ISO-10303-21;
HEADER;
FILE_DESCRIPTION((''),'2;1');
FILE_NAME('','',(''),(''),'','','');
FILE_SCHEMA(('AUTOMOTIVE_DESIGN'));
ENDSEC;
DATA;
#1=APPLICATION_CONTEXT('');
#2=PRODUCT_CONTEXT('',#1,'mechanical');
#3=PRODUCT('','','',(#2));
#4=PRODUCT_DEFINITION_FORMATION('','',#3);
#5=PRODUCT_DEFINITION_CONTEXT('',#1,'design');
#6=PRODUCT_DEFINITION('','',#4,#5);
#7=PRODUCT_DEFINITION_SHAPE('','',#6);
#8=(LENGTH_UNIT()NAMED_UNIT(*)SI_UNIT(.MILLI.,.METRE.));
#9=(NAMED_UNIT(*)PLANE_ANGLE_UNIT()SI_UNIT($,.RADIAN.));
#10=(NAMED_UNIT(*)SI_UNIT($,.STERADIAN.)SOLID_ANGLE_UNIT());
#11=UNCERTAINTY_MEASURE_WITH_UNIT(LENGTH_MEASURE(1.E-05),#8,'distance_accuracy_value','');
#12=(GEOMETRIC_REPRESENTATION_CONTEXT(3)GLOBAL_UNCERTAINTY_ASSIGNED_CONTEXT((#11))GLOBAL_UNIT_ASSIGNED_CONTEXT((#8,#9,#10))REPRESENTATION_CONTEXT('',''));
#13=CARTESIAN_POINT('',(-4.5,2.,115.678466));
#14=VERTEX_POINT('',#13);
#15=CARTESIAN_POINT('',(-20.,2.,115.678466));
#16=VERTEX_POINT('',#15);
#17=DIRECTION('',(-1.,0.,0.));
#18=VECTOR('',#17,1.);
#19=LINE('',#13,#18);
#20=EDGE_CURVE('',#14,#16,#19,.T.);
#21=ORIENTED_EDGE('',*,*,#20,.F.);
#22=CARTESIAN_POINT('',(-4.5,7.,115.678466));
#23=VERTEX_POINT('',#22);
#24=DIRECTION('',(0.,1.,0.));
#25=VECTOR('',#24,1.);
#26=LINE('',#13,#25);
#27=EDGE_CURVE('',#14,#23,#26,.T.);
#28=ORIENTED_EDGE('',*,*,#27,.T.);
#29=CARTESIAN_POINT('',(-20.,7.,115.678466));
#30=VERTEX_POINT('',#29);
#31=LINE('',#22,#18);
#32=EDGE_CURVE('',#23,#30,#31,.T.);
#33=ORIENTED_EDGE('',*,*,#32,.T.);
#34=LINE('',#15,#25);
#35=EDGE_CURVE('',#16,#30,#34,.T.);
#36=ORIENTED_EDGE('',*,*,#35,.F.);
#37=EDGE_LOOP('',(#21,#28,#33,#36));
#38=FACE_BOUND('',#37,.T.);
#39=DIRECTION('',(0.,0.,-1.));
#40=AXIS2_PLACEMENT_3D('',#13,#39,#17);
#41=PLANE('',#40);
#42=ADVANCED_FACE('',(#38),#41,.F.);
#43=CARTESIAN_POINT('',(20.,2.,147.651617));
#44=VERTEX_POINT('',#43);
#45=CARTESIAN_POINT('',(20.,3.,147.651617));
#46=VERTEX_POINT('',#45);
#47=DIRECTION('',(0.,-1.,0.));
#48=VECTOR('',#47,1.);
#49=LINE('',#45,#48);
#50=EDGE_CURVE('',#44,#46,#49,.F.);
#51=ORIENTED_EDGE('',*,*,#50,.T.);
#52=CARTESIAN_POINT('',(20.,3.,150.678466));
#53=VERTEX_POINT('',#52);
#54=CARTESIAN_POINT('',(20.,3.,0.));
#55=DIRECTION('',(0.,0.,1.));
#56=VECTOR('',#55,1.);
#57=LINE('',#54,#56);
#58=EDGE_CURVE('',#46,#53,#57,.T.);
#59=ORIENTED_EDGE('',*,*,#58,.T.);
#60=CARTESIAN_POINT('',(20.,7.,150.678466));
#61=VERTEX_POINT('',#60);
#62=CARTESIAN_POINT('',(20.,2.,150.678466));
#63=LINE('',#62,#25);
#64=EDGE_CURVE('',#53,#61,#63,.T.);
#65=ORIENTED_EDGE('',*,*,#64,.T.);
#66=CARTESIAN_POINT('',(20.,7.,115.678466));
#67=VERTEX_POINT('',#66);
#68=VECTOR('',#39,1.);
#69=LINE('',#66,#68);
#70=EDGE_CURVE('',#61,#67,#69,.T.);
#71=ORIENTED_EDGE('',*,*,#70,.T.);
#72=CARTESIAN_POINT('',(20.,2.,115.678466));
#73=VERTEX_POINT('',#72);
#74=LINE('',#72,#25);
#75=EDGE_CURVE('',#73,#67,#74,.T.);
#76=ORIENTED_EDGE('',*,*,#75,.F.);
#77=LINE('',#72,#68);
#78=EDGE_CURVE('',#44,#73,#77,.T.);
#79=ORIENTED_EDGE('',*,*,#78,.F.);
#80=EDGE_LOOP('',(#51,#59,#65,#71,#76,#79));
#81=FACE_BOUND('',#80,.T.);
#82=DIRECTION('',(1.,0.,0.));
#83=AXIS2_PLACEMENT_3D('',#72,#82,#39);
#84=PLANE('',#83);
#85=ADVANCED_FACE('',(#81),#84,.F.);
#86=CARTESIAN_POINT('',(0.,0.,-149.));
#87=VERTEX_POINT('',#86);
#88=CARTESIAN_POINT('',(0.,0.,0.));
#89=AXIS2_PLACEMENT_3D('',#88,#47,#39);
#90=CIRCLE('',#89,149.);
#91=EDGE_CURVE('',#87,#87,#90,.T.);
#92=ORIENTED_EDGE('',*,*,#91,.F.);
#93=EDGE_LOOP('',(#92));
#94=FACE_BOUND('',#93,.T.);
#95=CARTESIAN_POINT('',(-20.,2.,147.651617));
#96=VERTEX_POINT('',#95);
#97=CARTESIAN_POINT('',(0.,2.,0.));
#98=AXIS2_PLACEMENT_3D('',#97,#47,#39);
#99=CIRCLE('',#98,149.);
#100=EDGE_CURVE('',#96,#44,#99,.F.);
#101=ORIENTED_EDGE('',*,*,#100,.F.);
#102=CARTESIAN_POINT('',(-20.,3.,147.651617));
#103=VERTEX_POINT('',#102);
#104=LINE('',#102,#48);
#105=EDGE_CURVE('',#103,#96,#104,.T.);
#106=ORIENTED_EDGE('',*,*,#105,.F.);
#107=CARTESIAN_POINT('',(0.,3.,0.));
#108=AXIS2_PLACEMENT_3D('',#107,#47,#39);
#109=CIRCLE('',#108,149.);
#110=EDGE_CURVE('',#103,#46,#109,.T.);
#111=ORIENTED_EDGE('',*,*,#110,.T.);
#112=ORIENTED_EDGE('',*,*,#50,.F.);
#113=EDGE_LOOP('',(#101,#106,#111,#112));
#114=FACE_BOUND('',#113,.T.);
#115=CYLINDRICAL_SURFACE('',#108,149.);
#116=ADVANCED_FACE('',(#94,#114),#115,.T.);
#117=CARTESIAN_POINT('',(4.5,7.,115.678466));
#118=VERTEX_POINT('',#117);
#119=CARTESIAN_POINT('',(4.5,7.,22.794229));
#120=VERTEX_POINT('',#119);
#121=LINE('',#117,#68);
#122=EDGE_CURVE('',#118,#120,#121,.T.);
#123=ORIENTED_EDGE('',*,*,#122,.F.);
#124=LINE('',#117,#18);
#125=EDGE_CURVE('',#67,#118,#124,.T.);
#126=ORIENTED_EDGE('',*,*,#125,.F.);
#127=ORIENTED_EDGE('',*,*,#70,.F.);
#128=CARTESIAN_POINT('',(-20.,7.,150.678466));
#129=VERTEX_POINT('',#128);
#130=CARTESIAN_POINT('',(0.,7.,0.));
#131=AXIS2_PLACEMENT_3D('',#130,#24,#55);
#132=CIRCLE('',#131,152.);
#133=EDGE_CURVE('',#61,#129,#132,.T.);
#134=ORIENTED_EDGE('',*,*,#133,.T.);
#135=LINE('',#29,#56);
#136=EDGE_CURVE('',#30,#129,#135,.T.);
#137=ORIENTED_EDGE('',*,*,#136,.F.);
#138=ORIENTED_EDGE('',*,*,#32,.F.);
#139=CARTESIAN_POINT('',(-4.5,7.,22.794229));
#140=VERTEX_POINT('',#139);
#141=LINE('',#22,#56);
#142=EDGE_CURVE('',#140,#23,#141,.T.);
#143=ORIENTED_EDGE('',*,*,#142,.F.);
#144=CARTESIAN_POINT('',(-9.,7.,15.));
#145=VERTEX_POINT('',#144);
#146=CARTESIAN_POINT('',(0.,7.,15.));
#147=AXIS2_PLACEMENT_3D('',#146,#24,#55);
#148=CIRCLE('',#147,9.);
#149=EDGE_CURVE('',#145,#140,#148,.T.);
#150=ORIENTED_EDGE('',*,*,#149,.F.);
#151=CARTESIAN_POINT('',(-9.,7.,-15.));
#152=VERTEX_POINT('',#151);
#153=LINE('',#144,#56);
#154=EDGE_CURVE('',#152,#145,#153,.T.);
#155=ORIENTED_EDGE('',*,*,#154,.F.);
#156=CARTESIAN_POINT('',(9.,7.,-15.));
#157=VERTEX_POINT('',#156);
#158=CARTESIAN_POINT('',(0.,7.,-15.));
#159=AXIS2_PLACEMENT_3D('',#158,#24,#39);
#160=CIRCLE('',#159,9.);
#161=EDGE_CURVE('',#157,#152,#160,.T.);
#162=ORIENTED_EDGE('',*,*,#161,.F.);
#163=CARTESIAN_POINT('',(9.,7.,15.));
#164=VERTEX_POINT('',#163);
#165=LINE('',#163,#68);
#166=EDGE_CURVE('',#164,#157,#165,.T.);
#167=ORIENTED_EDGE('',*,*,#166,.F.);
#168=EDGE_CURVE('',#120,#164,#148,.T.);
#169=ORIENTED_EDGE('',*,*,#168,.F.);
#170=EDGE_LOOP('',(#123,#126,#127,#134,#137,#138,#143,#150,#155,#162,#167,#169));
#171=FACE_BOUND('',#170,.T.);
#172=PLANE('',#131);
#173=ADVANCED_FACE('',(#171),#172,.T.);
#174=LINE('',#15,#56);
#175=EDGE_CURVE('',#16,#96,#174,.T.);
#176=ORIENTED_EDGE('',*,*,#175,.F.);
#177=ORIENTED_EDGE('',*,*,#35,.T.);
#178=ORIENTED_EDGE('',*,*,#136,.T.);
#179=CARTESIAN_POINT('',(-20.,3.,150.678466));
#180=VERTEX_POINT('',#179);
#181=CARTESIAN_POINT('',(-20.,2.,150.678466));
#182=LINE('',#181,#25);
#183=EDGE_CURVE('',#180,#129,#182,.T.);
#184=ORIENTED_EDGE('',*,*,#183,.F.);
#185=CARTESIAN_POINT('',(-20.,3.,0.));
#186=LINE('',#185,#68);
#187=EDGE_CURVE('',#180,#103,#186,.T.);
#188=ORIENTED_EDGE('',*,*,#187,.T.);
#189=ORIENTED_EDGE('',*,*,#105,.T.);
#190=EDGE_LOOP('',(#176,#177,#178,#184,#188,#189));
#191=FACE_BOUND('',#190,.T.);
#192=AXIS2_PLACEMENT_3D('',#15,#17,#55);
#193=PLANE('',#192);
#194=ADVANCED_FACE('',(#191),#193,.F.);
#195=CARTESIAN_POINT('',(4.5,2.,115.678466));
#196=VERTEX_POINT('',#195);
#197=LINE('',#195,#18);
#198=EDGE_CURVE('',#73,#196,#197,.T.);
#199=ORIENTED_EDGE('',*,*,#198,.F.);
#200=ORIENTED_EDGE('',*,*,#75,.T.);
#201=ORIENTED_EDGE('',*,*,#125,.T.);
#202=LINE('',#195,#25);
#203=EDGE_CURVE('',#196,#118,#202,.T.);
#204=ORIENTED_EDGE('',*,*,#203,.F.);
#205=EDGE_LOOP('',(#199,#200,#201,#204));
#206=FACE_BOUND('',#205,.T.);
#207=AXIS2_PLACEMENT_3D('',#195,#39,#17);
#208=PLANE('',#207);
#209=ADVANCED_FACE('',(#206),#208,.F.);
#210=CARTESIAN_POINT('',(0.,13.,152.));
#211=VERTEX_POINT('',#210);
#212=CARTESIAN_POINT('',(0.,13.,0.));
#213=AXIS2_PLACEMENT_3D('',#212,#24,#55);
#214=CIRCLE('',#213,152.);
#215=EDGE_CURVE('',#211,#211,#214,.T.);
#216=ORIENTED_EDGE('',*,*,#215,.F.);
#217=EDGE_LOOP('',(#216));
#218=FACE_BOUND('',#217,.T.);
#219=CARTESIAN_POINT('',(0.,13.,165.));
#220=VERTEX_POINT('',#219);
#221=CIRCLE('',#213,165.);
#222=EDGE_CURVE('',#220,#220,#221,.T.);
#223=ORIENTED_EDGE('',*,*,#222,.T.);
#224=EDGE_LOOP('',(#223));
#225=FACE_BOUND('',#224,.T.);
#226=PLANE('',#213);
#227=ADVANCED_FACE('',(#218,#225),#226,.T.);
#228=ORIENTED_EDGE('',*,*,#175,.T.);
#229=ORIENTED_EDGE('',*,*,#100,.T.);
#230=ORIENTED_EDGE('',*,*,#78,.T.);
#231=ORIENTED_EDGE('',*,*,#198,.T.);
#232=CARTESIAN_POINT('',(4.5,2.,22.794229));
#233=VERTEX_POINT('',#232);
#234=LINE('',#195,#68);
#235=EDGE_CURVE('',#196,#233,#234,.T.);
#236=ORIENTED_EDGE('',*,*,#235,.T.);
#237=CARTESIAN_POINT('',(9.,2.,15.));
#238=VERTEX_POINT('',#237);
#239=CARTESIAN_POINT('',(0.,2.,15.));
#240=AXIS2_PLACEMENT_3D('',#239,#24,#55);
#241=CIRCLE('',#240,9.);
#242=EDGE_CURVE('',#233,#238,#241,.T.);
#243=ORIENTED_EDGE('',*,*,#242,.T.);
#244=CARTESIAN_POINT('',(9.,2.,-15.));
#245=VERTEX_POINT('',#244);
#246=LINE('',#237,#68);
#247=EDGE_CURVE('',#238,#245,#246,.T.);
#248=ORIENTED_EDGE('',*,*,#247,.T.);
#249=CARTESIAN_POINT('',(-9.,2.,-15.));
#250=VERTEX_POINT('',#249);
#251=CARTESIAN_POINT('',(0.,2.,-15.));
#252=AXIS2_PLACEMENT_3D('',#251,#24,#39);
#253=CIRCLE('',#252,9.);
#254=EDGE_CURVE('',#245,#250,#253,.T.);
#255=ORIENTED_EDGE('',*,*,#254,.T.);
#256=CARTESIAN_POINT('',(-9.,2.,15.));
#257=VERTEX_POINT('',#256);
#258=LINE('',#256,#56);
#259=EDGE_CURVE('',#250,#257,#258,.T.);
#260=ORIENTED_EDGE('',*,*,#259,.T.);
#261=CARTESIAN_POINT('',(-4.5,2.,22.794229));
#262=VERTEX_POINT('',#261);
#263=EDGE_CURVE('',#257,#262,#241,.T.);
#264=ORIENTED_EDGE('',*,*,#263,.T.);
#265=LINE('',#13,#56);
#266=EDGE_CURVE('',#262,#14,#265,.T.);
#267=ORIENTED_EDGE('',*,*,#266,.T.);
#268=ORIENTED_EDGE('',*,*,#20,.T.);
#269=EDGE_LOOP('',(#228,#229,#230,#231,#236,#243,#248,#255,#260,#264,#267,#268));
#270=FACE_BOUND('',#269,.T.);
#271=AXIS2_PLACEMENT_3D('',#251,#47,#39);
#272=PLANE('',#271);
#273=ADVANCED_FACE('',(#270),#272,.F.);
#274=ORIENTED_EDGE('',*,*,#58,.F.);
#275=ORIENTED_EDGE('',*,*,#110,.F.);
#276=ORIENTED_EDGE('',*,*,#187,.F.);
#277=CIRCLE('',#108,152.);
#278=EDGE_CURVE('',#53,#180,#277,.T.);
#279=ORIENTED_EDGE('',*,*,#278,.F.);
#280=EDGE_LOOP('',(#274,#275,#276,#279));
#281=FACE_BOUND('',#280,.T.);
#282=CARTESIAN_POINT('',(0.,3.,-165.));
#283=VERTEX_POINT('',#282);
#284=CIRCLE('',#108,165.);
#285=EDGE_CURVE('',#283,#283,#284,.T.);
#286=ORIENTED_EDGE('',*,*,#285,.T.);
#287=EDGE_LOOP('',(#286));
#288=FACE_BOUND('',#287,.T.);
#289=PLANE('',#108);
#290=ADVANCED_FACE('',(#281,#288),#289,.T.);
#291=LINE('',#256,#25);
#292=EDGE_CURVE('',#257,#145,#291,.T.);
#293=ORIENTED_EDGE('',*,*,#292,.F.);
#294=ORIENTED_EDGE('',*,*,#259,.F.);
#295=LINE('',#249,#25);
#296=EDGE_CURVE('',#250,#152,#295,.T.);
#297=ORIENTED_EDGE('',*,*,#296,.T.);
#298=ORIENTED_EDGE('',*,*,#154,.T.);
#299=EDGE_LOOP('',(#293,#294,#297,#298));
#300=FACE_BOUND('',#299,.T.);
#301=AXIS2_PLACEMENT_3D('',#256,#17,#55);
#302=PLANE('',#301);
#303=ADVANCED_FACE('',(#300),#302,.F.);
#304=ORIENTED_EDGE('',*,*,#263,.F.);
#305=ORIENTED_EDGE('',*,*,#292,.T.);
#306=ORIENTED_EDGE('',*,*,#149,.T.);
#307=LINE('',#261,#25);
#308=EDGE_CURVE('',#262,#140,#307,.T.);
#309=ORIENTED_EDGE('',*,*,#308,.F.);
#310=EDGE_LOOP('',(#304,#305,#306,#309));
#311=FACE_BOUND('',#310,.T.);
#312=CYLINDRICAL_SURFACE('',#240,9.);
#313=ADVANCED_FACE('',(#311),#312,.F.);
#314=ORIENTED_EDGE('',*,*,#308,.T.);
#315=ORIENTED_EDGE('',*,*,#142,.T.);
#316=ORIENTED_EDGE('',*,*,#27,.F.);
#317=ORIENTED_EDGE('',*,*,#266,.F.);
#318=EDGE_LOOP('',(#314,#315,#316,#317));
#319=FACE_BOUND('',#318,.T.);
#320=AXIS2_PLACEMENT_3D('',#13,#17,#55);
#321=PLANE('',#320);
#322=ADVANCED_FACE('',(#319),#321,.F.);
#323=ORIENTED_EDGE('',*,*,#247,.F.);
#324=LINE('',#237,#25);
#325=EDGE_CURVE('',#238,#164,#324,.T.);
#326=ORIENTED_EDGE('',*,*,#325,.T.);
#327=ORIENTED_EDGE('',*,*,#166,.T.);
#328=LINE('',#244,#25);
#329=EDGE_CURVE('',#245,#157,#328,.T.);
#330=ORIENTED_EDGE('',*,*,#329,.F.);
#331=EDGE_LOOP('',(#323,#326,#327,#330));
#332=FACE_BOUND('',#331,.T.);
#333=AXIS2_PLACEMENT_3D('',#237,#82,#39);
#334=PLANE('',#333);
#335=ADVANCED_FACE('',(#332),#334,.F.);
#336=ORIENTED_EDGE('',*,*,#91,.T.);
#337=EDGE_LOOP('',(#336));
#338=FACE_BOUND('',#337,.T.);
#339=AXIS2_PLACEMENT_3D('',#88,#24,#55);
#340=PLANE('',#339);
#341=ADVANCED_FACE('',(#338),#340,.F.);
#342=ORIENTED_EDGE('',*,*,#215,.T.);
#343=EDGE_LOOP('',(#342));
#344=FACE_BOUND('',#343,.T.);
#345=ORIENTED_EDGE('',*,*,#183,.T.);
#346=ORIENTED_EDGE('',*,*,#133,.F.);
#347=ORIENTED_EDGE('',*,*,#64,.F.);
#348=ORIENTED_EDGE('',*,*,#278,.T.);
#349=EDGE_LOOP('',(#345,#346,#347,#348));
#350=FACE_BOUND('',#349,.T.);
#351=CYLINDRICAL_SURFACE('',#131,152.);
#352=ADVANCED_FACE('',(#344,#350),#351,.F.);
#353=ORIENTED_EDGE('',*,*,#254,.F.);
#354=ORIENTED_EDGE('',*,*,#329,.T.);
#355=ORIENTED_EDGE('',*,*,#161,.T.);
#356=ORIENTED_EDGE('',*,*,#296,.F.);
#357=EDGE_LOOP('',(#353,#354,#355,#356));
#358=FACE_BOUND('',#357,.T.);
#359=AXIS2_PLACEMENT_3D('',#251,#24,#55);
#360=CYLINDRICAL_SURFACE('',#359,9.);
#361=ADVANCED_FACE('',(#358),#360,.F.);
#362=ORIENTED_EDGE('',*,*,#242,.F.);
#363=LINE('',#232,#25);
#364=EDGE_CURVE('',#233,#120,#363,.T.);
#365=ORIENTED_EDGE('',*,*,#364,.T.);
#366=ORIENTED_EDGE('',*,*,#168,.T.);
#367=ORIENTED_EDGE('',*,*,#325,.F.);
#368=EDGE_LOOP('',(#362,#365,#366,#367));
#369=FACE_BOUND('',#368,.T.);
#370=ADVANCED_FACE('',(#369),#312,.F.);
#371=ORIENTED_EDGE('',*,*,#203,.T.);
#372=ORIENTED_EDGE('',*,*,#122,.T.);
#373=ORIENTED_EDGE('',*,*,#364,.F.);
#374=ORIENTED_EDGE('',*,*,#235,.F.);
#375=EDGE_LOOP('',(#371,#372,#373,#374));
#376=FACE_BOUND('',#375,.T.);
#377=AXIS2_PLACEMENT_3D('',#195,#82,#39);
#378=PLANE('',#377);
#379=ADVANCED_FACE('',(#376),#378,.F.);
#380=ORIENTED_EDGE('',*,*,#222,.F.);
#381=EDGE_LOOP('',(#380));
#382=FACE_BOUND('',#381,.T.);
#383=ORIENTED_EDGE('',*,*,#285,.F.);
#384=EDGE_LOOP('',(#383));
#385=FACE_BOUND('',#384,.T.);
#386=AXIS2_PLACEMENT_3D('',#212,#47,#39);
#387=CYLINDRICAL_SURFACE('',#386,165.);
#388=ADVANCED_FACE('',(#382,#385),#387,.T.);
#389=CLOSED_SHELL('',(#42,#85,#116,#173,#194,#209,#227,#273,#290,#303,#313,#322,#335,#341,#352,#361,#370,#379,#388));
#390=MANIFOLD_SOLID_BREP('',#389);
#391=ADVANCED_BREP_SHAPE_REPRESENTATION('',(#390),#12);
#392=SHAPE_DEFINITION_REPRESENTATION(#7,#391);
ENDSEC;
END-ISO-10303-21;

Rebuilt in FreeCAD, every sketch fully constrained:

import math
import FreeCAD as App
import Part
import Sketcher

doc = App.newDocument("Part")
params = doc.addObject("Spreadsheet::Sheet", "Params")
for row, (alias, value) in enumerate([
    ("sketch1_diameter", "330 mm"),
    ("pad1_length", "13 mm"),
    ("sketch2_diameter", "330 mm"),
    ("sketch2_diameter2", "298 mm"),
    ("pocket1_length", "3 mm"),
    ("sketch3_diameter", "304 mm"),
    ("pocket2_length", "6 mm"),
    ("sketch4_radius", "152 mm"),
    ("sketch4_radius2", "9 mm"),
    ("sketch4_height", "35 mm"),
    ("sketch4_height2", "30 mm"),
    ("sketch4_width", "15.5 mm"),
    ("pocket3_length", "5 mm"),
], start=1):
    params.set(f"A{row}", alias)
    params.set(f"B{row}", "=" + value)
    params.setAlias(f"B{row}", alias)

body = doc.addObject("PartDesign::Body", "Body")

# Sketch on XZ plane
sketch1 = body.newObject("Sketcher::SketchObject", "Sketch")
sketch1.AttachmentSupport = (doc.getObject("XZ_Plane"), [""])
sketch1.MapMode = "FlatFace"
sketch1.addGeometry(Part.Circle(App.Vector(0, 0, 0), App.Vector(0, 0, 1), 165), False)
sketch1.addConstraint([
    Sketcher.Constraint("Coincident", 0, 3, -1, 1),
    Sketcher.Constraint("Diameter", 0, 330.0),
])
sketch1.setExpression("Constraints[1]", "Params.sketch1_diameter")
pad1 = body.newObject("PartDesign::Pad", "Pad")
pad1.Profile = sketch1
pad1.setExpression("Length", "Params.pad1_length")
pad1.Reversed = True

# Sketch on XZ plane
sketch2 = body.newObject("Sketcher::SketchObject", "Sketch001")
sketch2.AttachmentSupport = (doc.getObject("XZ_Plane"), [""])
sketch2.MapMode = "FlatFace"
sketch2.addGeometry([
    Part.Circle(App.Vector(0, 0, 0), App.Vector(0, 0, 1), 165),
    Part.Circle(App.Vector(0, 0, 0), App.Vector(0, 0, 1), 149),
], False)
sketch2.addConstraint([
    Sketcher.Constraint("Coincident", 0, 3, -1, 1),
    Sketcher.Constraint("Coincident", 1, 3, -1, 1),
    Sketcher.Constraint("Diameter", 0, 330.0),
    Sketcher.Constraint("Diameter", 1, 298.0),
])
sketch2.setExpression("Constraints[2]", "Params.sketch2_diameter")
sketch2.setExpression("Constraints[3]", "Params.sketch2_diameter2")
pocket1 = body.newObject("PartDesign::Pocket", "Pocket")
pocket1.Profile = sketch2
pocket1.setExpression("Length", "Params.pocket1_length")

# Sketch on XZ plane
sketch3 = body.newObject("Sketcher::SketchObject", "Sketch002")
sketch3.AttachmentSupport = (doc.getObject("XZ_Plane"), [""])
sketch3.MapMode = "FlatFace"
sketch3.AttachmentOffset = App.Placement(App.Vector(0, 0, -13), App.Rotation())
sketch3.addGeometry(Part.Circle(App.Vector(0, 0, 0), App.Vector(0, 0, 1), 152), False)
sketch3.addConstraint([
    Sketcher.Constraint("Coincident", 0, 3, -1, 1),
    Sketcher.Constraint("Diameter", 0, 304.0),
])
sketch3.setExpression("Constraints[1]", "Params.sketch3_diameter")
pocket2 = body.newObject("PartDesign::Pocket", "Pocket001")
pocket2.Profile = sketch3
pocket2.setExpression("Length", "Params.pocket2_length")
pocket2.Reversed = True

# Sketch on XZ plane
sketch4 = body.newObject("Sketcher::SketchObject", "Sketch003")
sketch4.AttachmentSupport = (doc.getObject("XZ_Plane"), [""])
sketch4.MapMode = "FlatFace"
sketch4.AttachmentOffset = App.Placement(App.Vector(0, 0, -7), App.Rotation())
sketch4.addGeometry([
    Part.LineSegment(App.Vector(-4, 23, 0), App.Vector(-4, 116, 0)),  # 0
    Part.LineSegment(App.Vector(-4, 116, 0), App.Vector(-20, 116, 0)),  # 1
    Part.LineSegment(App.Vector(-20, 116, 0), App.Vector(-20, 151, 0)),  # 2
    Part.ArcOfCircle(Part.Circle(App.Vector(0, 0, 0), App.Vector(0, 0, 1), 152), math.radians(82.44), math.radians(97.56)),  # 3
    Part.LineSegment(App.Vector(20, 151, 0), App.Vector(20, 116, 0)),  # 4
    Part.LineSegment(App.Vector(20, 116, 0), App.Vector(4, 116, 0)),  # 5
    Part.LineSegment(App.Vector(4, 116, 0), App.Vector(4, 23, 0)),  # 6
    Part.ArcOfCircle(Part.Circle(App.Vector(0, 15, 0), App.Vector(0, 0, 1), 9), math.radians(0), math.radians(60)),  # 7
    Part.LineSegment(App.Vector(9, 15, 0), App.Vector(9, -15, 0)),  # 8
    Part.ArcOfCircle(Part.Circle(App.Vector(0, -15, 0), App.Vector(0, 0, 1), 9), math.radians(180), math.radians(360)),  # 9
    Part.LineSegment(App.Vector(-9, -15, 0), App.Vector(-9, 15, 0)),  # 10
    Part.ArcOfCircle(Part.Circle(App.Vector(0, 15, 0), App.Vector(0, 0, 1), 9), math.radians(120), math.radians(180)),  # 11
], False)
sketch4.addConstraint([
    Sketcher.Constraint("Coincident", 0, 2, 1, 1),
    Sketcher.Constraint("Coincident", 1, 2, 2, 1),
    Sketcher.Constraint("Coincident", 2, 2, 3, 2),
    Sketcher.Constraint("Coincident", 3, 1, 4, 1),
    Sketcher.Constraint("Coincident", 4, 2, 5, 1),
    Sketcher.Constraint("Coincident", 5, 2, 6, 1),
    Sketcher.Constraint("Coincident", 6, 2, 7, 2),
    Sketcher.Constraint("Tangent", 7, 1, 8, 1),
    Sketcher.Constraint("Tangent", 8, 2, 9, 2),
    Sketcher.Constraint("Tangent", 9, 1, 10, 1),
    Sketcher.Constraint("Tangent", 10, 2, 11, 2),
    Sketcher.Constraint("Coincident", 11, 1, 0, 1),
    Sketcher.Constraint("Vertical", 0),
    Sketcher.Constraint("Horizontal", 1),
    Sketcher.Constraint("Vertical", 2),
    Sketcher.Constraint("Vertical", 4),
    Sketcher.Constraint("Horizontal", 5),
    Sketcher.Constraint("Vertical", 6),
    Sketcher.Constraint("Vertical", 8),
    Sketcher.Constraint("Vertical", 10),
    Sketcher.Constraint("Coincident", 3, 3, -1, 1),
    Sketcher.Constraint("Coincident", 11, 3, 7, 3),
    Sketcher.Constraint("Equal", 7, 9),
    Sketcher.Constraint("Symmetric", 7, 3, 9, 3, -1, 1),
    Sketcher.Constraint("Symmetric", 1, 2, 4, 2, -2),
    Sketcher.Constraint("Horizontal", 6, 2, 11, 1),
    Sketcher.Constraint("Radius", 3, 152.0),
    Sketcher.Constraint("Radius", 7, 9.0),
    Sketcher.Constraint("DistanceY", 2, 1, 2, 2, 35.0),
    Sketcher.Constraint("DistanceY", 8, 2, 8, 1, 30.0),
    Sketcher.Constraint("DistanceX", 1, 2, 1, 1, 15.5),
    Sketcher.Constraint("DistanceX", 1, 2, -1, 1, 20.0),
])
sketch4.setExpression("Constraints[26]", "Params.sketch4_radius")
sketch4.setExpression("Constraints[27]", "Params.sketch4_radius2")
sketch4.setExpression("Constraints[28]", "Params.sketch4_height")
sketch4.setExpression("Constraints[29]", "Params.sketch4_height2")
sketch4.setExpression("Constraints[30]", "Params.sketch4_width")
pocket3 = body.newObject("PartDesign::Pocket", "Pocket002")
pocket3.Profile = sketch4
pocket3.setExpression("Length", "Params.pocket3_length")
pocket3.Reversed = True

doc.recompute()
